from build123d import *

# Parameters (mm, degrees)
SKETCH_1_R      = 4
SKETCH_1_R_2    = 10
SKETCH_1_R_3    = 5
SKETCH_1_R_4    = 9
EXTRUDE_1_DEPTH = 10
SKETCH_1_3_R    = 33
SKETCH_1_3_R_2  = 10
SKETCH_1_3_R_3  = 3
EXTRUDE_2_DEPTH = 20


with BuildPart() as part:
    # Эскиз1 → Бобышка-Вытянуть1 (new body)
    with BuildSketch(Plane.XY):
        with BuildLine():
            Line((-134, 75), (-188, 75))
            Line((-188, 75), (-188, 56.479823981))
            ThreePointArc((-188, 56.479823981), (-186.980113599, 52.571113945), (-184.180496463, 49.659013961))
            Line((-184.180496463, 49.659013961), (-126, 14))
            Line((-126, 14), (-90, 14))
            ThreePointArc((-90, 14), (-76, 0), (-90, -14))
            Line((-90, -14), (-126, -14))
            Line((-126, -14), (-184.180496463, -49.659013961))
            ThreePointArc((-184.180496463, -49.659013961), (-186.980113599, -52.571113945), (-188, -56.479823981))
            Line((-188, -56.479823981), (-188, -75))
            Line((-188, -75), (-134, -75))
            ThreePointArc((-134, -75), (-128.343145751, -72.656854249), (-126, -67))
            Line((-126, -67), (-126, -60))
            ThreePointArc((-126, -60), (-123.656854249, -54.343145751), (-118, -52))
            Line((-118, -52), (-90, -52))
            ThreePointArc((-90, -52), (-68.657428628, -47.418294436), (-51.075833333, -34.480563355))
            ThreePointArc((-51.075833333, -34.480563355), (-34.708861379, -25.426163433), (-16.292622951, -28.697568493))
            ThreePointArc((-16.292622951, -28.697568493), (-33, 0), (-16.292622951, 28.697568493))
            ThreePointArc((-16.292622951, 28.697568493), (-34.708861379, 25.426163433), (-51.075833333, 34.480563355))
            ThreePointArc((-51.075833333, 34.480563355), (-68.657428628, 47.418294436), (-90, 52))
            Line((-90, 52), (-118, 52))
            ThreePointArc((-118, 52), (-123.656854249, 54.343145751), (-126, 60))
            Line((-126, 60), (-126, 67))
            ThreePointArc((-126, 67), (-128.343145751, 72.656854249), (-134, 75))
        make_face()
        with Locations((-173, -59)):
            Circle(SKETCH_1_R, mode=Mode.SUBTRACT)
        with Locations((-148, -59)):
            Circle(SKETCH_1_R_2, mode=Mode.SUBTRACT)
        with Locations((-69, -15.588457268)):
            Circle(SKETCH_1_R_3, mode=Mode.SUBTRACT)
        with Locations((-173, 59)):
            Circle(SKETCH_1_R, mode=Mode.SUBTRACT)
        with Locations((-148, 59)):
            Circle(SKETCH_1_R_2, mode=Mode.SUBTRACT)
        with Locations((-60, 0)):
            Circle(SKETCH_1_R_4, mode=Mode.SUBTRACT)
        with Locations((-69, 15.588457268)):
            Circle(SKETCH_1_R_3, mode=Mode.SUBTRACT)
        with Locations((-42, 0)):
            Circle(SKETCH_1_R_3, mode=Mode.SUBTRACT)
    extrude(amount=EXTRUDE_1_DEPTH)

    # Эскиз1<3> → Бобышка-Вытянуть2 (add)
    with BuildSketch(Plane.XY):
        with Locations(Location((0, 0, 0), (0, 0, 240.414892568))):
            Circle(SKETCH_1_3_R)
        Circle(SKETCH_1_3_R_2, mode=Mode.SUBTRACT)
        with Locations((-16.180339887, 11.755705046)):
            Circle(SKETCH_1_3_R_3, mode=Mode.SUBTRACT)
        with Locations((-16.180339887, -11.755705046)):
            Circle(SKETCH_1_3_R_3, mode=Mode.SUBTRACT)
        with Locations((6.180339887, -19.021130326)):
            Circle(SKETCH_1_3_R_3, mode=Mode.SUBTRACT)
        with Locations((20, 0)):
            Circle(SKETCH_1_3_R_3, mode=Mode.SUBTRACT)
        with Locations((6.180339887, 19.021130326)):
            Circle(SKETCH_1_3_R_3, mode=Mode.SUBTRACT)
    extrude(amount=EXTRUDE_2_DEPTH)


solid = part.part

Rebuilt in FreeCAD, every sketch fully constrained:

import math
import FreeCAD as App
import Part
import Sketcher

doc = App.newDocument("Part")
body = doc.addObject("PartDesign::Body", "Body")

sketch1 = body.newObject("Sketcher::SketchObject", "Sketch")
sketch1.AttachmentSupport = (doc.getObject("XY_Plane"), [""])
sketch1.MapMode = "FlatFace"
sketch1.addGeometry(Part.LineSegment(App.Vector(-134, 75, 0), App.Vector(-188, 75, 0)), False)
sketch1.addGeometry(Part.LineSegment(App.Vector(-188, 75, 0), App.Vector(-188, 56.5, 0)), False)
sketch1.addGeometry(Part.ArcOfCircle(Part.Circle(App.Vector(-180, 56.5, 0), App.Vector(0, 0, 1), 8), math.radians(180), math.radians(238)), False)
sketch1.addGeometry(Part.LineSegment(App.Vector(-184.2, 49.7, 0), App.Vector(-126, 14, 0)), False)
sketch1.addGeometry(Part.LineSegment(App.Vector(-126, 14, 0), App.Vector(-90, 14, 0)), False)
sketch1.addGeometry(Part.ArcOfCircle(Part.Circle(App.Vector(-90, 0, 0), App.Vector(0, 0, 1), 14), math.radians(-90), math.radians(90)), False)
sketch1.addGeometry(Part.LineSegment(App.Vector(-90, -14, 0), App.Vector(-126, -14, 0)), False)
sketch1.addGeometry(Part.LineSegment(App.Vector(-126, -14, 0), App.Vector(-184.2, -49.7, 0)), False)
sketch1.addGeometry(Part.ArcOfCircle(Part.Circle(App.Vector(-180, -56.5, 0), App.Vector(0, 0, 1), 8), math.radians(122), math.radians(180)), False)
sketch1.addGeometry(Part.LineSegment(App.Vector(-188, -56.5, 0), App.Vector(-188, -75, 0)), False)
sketch1.addGeometry(Part.LineSegment(App.Vector(-188, -75, 0), App.Vector(-134, -75, 0)), False)
sketch1.addGeometry(Part.ArcOfCircle(Part.Circle(App.Vector(-134, -67, 0), App.Vector(0, 0, 1), 8), math.radians(-90), math.radians(0)), False)
sketch1.addGeometry(Part.LineSegment(App.Vector(-126, -67, 0), App.Vector(-126, -60, 0)), False)
sketch1.addGeometry(Part.ArcOfCircle(Part.Circle(App.Vector(-118, -60, 0), App.Vector(0, 0, 1), 8), math.radians(90), math.radians(180)), False)
sketch1.addGeometry(Part.LineSegment(App.Vector(-118, -52, 0), App.Vector(-90, -52, 0)), False)
sketch1.addGeometry(Part.ArcOfCircle(Part.Circle(App.Vector(-90, 0, 0), App.Vector(0, 0, 1), 52), math.radians(-90), math.radians(-42)), False)
sketch1.addGeometry(Part.ArcOfCircle(Part.Circle(App.Vector(-30.1, -53, 0), App.Vector(0, 0, 1), 28), math.radians(60), math.radians(138)), False)
sketch1.addGeometry(Part.ArcOfCircle(Part.Circle(App.Vector(0, 0, 0), App.Vector(0, 0, 1), 33), math.radians(120), math.radians(240)), False)
sketch1.addGeometry(Part.ArcOfCircle(Part.Circle(App.Vector(-30.1, 53, 0), App.Vector(0, 0, 1), 28), math.radians(-138), math.radians(-60)), False)
sketch1.addGeometry(Part.ArcOfCircle(Part.Circle(App.Vector(-90, 0, 0), App.Vector(0, 0, 1), 52), math.radians(42), math.radians(90)), False)
sketch1.addGeometry(Part.LineSegment(App.Vector(-90, 52, 0), App.Vector(-118, 52, 0)), False)
sketch1.addGeometry(Part.ArcOfCircle(Part.Circle(App.Vector(-118, 60, 0), App.Vector(0, 0, 1), 8), math.radians(-180), math.radians(-90)), False)
sketch1.addGeometry(Part.LineSegment(App.Vector(-126, 60, 0), App.Vector(-126, 67, 0)), False)
sketch1.addGeometry(Part.ArcOfCircle(Part.Circle(App.Vector(-134, 67, 0), App.Vector(0, 0, 1), 8), math.radians(0), math.radians(90)), False)
sketch1.addGeometry(Part.Circle(App.Vector(-173, -59, 0), App.Vector(0, 0, 1), 4), False)
sketch1.addGeometry(Part.Circle(App.Vector(-148, -59, 0), App.Vector(0, 0, 1), 10), False)
sketch1.addGeometry(Part.Circle(App.Vector(-69, -15.6, 0), App.Vector(0, 0, 1), 5), False)
sketch1.addGeometry(Part.Circle(App.Vector(-173, 59, 0), App.Vector(0, 0, 1), 4), False)
sketch1.addGeometry(Part.Circle(App.Vector(-148, 59, 0), App.Vector(0, 0, 1), 10), False)
sketch1.addGeometry(Part.Circle(App.Vector(-60, 0, 0), App.Vector(0, 0, 1), 9), False)
sketch1.addGeometry(Part.Circle(App.Vector(-69, 15.6, 0), App.Vector(0, 0, 1), 5), False)
sketch1.addGeometry(Part.Circle(App.Vector(-42, 0, 0), App.Vector(0, 0, 1), 5), False)
sketch1.addConstraint(Sketcher.Constraint("Coincident", 0, 2, 1, 1))
sketch1.addConstraint(Sketcher.Constraint("Tangent", 1, 2, 2, 1))
sketch1.addConstraint(Sketcher.Constraint("Tangent", 2, 2, 3, 1))
sketch1.addConstraint(Sketcher.Constraint("Coincident", 3, 2, 4, 1))
sketch1.addConstraint(Sketcher.Constraint("Tangent", 4, 2, 5, 2))
sketch1.addConstraint(Sketcher.Constraint("Tangent", 5, 1, 6, 1))
sketch1.addConstraint(Sketcher.Constraint("Coincident", 6, 2, 7, 1))
sketch1.addConstraint(Sketcher.Constraint("Tangent", 7, 2, 8, 1))
sketch1.addConstraint(Sketcher.Constraint("Tangent", 8, 2, 9, 1))
sketch1.addConstraint(Sketcher.Constraint("Coincident", 9, 2, 10, 1))
sketch1.addConstraint(Sketcher.Constraint("Tangent", 10, 2, 11, 1))
sketch1.addConstraint(Sketcher.Constraint("Tangent", 11, 2, 12, 1))
sketch1.addConstraint(Sketcher.Constraint("Tangent", 12, 2, 13, 2))
sketch1.addConstraint(Sketcher.Constraint("Tangent", 13, 1, 14, 1))
sketch1.addConstraint(Sketcher.Constraint("Tangent", 14, 2, 15, 1))
sketch1.addConstraint(Sketcher.Constraint("Tangent", 15, 2, 16, 2))
sketch1.addConstraint(Sketcher.Constraint("Tangent", 16, 1, 17, 2))
sketch1.addConstraint(Sketcher.Constraint("Tangent", 17, 1, 18, 2))
sketch1.addConstraint(Sketcher.Constraint("Tangent", 18, 1, 19, 1))
sketch1.addConstraint(Sketcher.Constraint("Tangent", 19, 2, 20, 1))
sketch1.addConstraint(Sketcher.Constraint("Tangent", 20, 2, 21, 2))
sketch1.addConstraint(Sketcher.Constraint("Tangent", 21, 1, 22, 1))
sketch1.addConstraint(Sketcher.Constraint("Tangent", 22, 2, 23, 1))
sketch1.addConstraint(Sketcher.Constraint("Tangent", 23, 2, 0, 1))
sketch1.addConstraint(Sketcher.Constraint("Horizontal", 0))
sketch1.addConstraint(Sketcher.Constraint("Vertical", 1))
sketch1.addConstraint(Sketcher.Constraint("Horizontal", 4))
sketch1.addConstraint(Sketcher.Constraint("Horizontal", 6))
sketch1.addConstraint(Sketcher.Constraint("Vertical", 9))
sketch1.addConstraint(Sketcher.Constraint("Horizontal", 10))
sketch1.addConstraint(Sketcher.Constraint("Vertical", 12))
sketch1.addConstraint(Sketcher.Constraint("Horizontal", 14))
sketch1.addConstraint(Sketcher.Constraint("Horizontal", 20))
sketch1.addConstraint(Sketcher.Constraint("Vertical", 22))
sketch1.addConstraint(Sketcher.Constraint("Coincident", 17, 3, -1, 1))
sketch1.addConstraint(Sketcher.Constraint("Coincident", 15, 3, 5, 3))
sketch1.addConstraint(Sketcher.Constraint("Coincident", 19, 3, 5, 3))
sketch1.addConstraint(Sketcher.Constraint("Equal", 2, 8))
sketch1.addConstraint(Sketcher.Constraint("Equal", 8, 11))
sketch1.addConstraint(Sketcher.Constraint("Equal", 11, 13))
sketch1.addConstraint(Sketcher.Constraint("Equal", 16, 18))
sketch1.addConstraint(Sketcher.Constraint("Equal", 15, 19))
sketch1.addConstraint(Sketcher.Constraint("Equal", 13, 21))
sketch1.addConstraint(Sketcher.Constraint("Equal", 21, 23))
sketch1.addConstraint(Sketcher.Constraint("Equal", 24, 27))
sketch1.addConstraint(Sketcher.Constraint("Equal", 25, 28))
sketch1.addConstraint(Sketcher.Constraint("Equal", 26, 30))
sketch1.addConstraint(Sketcher.Constraint("Equal", 30, 31))
sketch1.addConstraint(Sketcher.Constraint("Symmetric", 2, 3, 8, 3, -1))
sketch1.addConstraint(Sketcher.Constraint("Symmetric", 13, 3, 21, 3, -1))
sketch1.addConstraint(Sketcher.Constraint("Symmetric", 24, 3, 27, 3, -1))
sketch1.addConstraint(Sketcher.Constraint("Symmetric", 25, 3, 28, 3, -1))
sketch1.addConstraint(Sketcher.Constraint("Symmetric", 26, 3, 30, 3, -1))
sketch1.addConstraint(Sketcher.Constraint("PointOnObject", 29, 3, -1))
sketch1.addConstraint(Sketcher.Constraint("PointOnObject", 31, 3, -1))
sketch1.addConstraint(Sketcher.Constraint("Horizontal", 24, 3, 25, 3))
sketch1.addConstraint(Sketcher.Constraint("Vertical", 3, 2, 6, 2))
sketch1.addConstraint(Sketcher.Constraint("Vertical", 6, 2, 11, 2))
sketch1.addConstraint(Sketcher.Constraint("Equal", 1, 9))
sketch1.addConstraint(Sketcher.Constraint("Diameter", 24, 8.0))
sketch1.addConstraint(Sketcher.Constraint("Diameter", 25, 20.0))
sketch1.addConstraint(Sketcher.Constraint("Diameter", 26, 10.0))
sketch1.addConstraint(Sketcher.Constraint("Diameter", 29, 18.0))
sketch1.addConstraint(Sketcher.Constraint("Radius", 2, 8.0))
sketch1.addConstraint(Sketcher.Constraint("Radius", 5, 14.0))
sketch1.addConstraint(Sketcher.Constraint("Radius", 15, 52.0))
sketch1.addConstraint(Sketcher.Constraint("Radius", 16, 28.0))
sketch1.addConstraint(Sketcher.Constraint("Radius", 17, 33.0))
sketch1.addConstraint(Sketcher.Constraint("DistanceX", 0, 2, 0, 1, 54.0))
sketch1.addConstraint(Sketcher.Constraint("DistanceX", 4, 1, 4, 2, 36.0))
sketch1.addConstraint(Sketcher.Constraint("DistanceY", 12, 1, 12, 2, 7.0))
sketch1.addConstraint(Sketcher.Constraint("DistanceX", 2, 3, -1, 1, 180.0))
sketch1.addConstraint(Sketcher.Constraint("DistanceX", 24, 3, -1, 1, 173.0))
sketch1.addConstraint(Sketcher.Constraint("DistanceY", 24, 3, -1, 1, 59.0))
sketch1.addConstraint(Sketcher.Constraint("DistanceX", 25, 3, -1, 1, 148.0))
sketch1.addConstraint(Sketcher.Constraint("DistanceX", 26, 3, -1, 1, 69.0))
sketch1.addConstraint(Sketcher.Constraint("DistanceX", 29, 3, -1, 1, 60.0))
sketch1.addConstraint(Sketcher.Constraint("DistanceX", 31, 3, -1, 1, 42.0))
sketch1.addConstraint(Sketcher.Constraint("Distance", 3, 68.238812))
sketch1.addConstraint(Sketcher.Constraint("DistanceY", 30, 3, 17, 1, 13.109111))
pad1 = body.newObject("PartDesign::Pad", "Pad")
pad1.Profile = sketch1
pad1.Length = 10

sketch2 = body.newObject("Sketcher::SketchObject", "Sketch001")
sketch2.AttachmentSupport = (doc.getObject("XY_Plane"), [""])
sketch2.MapMode = "FlatFace"
sketch2.addGeometry(Part.Circle(App.Vector(0, 0, 0), App.Vector(0, 0, 1), 33), False)
sketch2.addGeometry(Part.Circle(App.Vector(-16.2, 11.8, 0), App.Vector(0, 0, 1), 3), False)
sketch2.addGeometry(Part.Circle(App.Vector(6.2, 19, 0), App.Vector(0, 0, 1), 3), False)
sketch2.addGeometry(Part.Circle(App.Vector(-16.2, -11.8, 0), App.Vector(0, 0, 1), 3), False)
sketch2.addGeometry(Part.Circle(App.Vector(20, 0, 0), App.Vector(0, 0, 1), 3), False)
sketch2.addGeometry(Part.Circle(App.Vector(0, 0, 0), App.Vector(0, 0, 1), 10), False)
sketch2.addGeometry(Part.Circle(App.Vector(6.2, -19, 0), App.Vector(0, 0, 1), 3), False)
sketch2.addConstraint(Sketcher.Constraint("Coincident", 0, 3, -1, 1))
sketch2.addConstraint(Sketcher.Constraint("Coincident", 5, 3, -1, 1))
sketch2.addConstraint(Sketcher.Constraint("Equal", 1, 2))
sketch2.addConstraint(Sketcher.Constraint("Equal", 2, 3))
sketch2.addConstraint(Sketcher.Constraint("Equal", 3, 4))
sketch2.addConstraint(Sketcher.Constraint("Equal", 4, 6))
sketch2.addConstraint(Sketcher.Constraint("Symmetric", 1, 3, 3, 3, -1))
sketch2.addConstraint(Sketcher.Constraint("Symmetric", 2, 3, 6, 3, -1))
sketch2.addConstraint(Sketcher.Constraint("PointOnObject", 4, 3, -1))
sketch2.addConstraint(Sketcher.Constraint("Diameter", 0, 66.0))
sketch2.addConstraint(Sketcher.Constraint("Diameter", 1, 6.0))
sketch2.addConstraint(Sketcher.Constraint("Diameter", 5, 20.0))
sketch2.addConstraint(Sketcher.Constraint("DistanceX", -1, 1, 4, 3, 20.0))
sketch2.addConstraint(Sketcher.Constraint("DistanceX", 1, 3, -1, 1, 16.18034))
sketch2.addConstraint(Sketcher.Constraint("DistanceX", -1, 1, 2, 3, 6.18034))
sketch2.addConstraint(Sketcher.Constraint("DistanceY", -1, 1, 2, 3, 19.02113))
sketch2.addConstraint(Sketcher.Constraint("DistanceY", 3, 3, 1, 3, 23.51141))
pad2 = body.newObject("PartDesign::Pad", "Pad001")
pad2.Profile = sketch2
pad2.Length = 20

doc.recompute()
